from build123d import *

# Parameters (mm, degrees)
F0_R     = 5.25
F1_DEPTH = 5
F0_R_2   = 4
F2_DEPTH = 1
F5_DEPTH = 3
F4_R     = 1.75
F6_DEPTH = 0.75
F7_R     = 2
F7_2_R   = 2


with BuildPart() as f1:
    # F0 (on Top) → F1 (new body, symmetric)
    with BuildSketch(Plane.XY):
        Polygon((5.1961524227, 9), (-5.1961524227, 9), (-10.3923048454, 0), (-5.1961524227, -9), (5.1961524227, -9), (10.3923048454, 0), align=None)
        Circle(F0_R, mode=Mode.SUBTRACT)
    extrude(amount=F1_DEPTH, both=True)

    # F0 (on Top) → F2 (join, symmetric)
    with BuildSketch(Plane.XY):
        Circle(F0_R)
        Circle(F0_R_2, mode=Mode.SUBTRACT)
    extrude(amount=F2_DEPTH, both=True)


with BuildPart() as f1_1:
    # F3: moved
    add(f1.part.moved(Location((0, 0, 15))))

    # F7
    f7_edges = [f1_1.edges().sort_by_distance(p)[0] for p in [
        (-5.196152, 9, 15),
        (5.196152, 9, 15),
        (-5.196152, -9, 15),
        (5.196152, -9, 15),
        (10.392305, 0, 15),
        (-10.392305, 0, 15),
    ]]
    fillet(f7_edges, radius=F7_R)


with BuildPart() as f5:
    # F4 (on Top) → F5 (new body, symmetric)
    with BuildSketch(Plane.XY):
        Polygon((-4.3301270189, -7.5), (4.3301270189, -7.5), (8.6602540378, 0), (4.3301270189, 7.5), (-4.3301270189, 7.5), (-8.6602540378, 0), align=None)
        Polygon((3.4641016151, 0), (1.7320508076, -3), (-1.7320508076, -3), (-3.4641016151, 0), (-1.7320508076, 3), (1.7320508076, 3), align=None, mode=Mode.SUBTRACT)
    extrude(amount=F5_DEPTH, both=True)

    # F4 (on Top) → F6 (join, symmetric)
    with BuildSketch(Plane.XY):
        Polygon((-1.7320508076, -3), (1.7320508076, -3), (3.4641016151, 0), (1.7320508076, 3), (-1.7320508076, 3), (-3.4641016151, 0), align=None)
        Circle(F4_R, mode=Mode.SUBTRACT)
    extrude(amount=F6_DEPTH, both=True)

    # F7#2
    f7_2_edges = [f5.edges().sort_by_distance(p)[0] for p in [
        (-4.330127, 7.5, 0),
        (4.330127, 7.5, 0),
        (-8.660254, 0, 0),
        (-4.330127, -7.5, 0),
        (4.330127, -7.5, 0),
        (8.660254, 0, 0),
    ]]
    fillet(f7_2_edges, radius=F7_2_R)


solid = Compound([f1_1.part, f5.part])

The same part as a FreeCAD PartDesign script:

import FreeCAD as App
import Part
import Sketcher
Q = App.Units.Quantity


def edges_at(feature, points):
    """Names of the edges that pass closest to the given points."""
    edges = feature.Shape.Edges
    near = lambda p: min(range(len(edges)), key=lambda i: edges[i].distToShape(Part.Vertex(*p))[0])
    return sorted({f"Edge{near(p) + 1}" for p in points})

doc = App.newDocument("Part")
body = doc.addObject("PartDesign::Body", "Body")

sketch1 = doc.addObject("Sketcher::SketchObject", "Sketch")
body.addObject(sketch1)
sketch1.AttachmentSupport = (doc.XY_Plane, [""])
sketch1.MapMode = "FlatFace"
sketch1.addGeometry([
    Part.LineSegment(App.Vector(5.196152, 9, 0), App.Vector(-5.196152, 9, 0)),
    Part.LineSegment(App.Vector(-5.196152, 9, 0), App.Vector(-10.392305, 0, 0)),
    Part.LineSegment(App.Vector(-10.392305, 0, 0), App.Vector(-5.196152, -9, 0)),
    Part.LineSegment(App.Vector(-5.196152, -9, 0), App.Vector(5.196152, -9, 0)),
    Part.LineSegment(App.Vector(5.196152, -9, 0), App.Vector(10.392305, 0, 0)),
    Part.LineSegment(App.Vector(10.392305, 0, 0), App.Vector(5.196152, 9, 0)),
    Part.Circle(App.Vector(0, 0, 0), App.Vector(0, 0, 1), 5.25),
], False)
sketch1.addConstraint([
    Sketcher.Constraint("Coincident", 0, 2, 1, 1),
    Sketcher.Constraint("Coincident", 1, 2, 2, 1),
    Sketcher.Constraint("Coincident", 2, 2, 3, 1),
    Sketcher.Constraint("Coincident", 3, 2, 4, 1),
    Sketcher.Constraint("Coincident", 4, 2, 5, 1),
    Sketcher.Constraint("Coincident", 5, 2, 0, 1),
    Sketcher.Constraint("Horizontal", 0),
    Sketcher.Constraint("Horizontal", 3),
    Sketcher.Constraint("Coincident", 6, 3, -1, 1),
    Sketcher.Constraint("Symmetric", 0, 2, 3, 2, -1, 1),
    Sketcher.Constraint("Symmetric", 1, 2, 4, 2, -1, 1),
    Sketcher.Constraint("PointOnObject", 1, 2, -1),
    Sketcher.Constraint("Parallel", 2, 5),
    Sketcher.Constraint("Vertical", 0, 2, 2, 2),
    Sketcher.Constraint("Diameter", 6, 10.5),
    Sketcher.Constraint("Angle", 1, Q("-120 deg")),
    Sketcher.Constraint("DistanceY", -1, 1, 0, 2, 9.0),
    Sketcher.Constraint("DistanceX", 0, 2, 0, 1, 10.392305),
])
pad1 = doc.addObject("PartDesign::Pad", "Pad")
body.addObject(pad1)
pad1.Profile = sketch1
pad1.Length = 10
pad1.Midplane = True

sketch2 = doc.addObject("Sketcher::SketchObject", "Sketch001")
body.addObject(sketch2)
sketch2.AttachmentSupport = (doc.XY_Plane, [""])
sketch2.MapMode = "FlatFace"
sketch2.addGeometry([
    Part.Circle(App.Vector(0, 0, 0), App.Vector(0, 0, 1), 5.25),
    Part.Circle(App.Vector(0, 0, 0), App.Vector(0, 0, 1), 4),
], False)
sketch2.addConstraint([
    Sketcher.Constraint("Coincident", 0, 3, -1, 1),
    Sketcher.Constraint("Coincident", 1, 3, -1, 1),
    Sketcher.Constraint("Diameter", 1, 8.0),
    Sketcher.Constraint("Diameter", 0, 10.5),
])
pad2 = doc.addObject("PartDesign::Pad", "Pad001")
body.addObject(pad2)
pad2.Profile = sketch2
pad2.Length = 2
pad2.Midplane = True
body2 = doc.addObject("PartDesign::Body", "Body001")
doc.recompute()

body.Placement = App.Placement(App.Vector(0, 0, 15), App.Rotation(App.Vector(0, 0, 1), 0))
boolean = doc.addObject("PartDesign::Boolean", "Boolean")
body2.addObject(boolean)
boolean.Type = "Fuse"
boolean.addObjects([body])
doc.recompute()

fillet = doc.addObject("PartDesign::Fillet", "Fillet")
body2.addObject(fillet)
fillet.Base = (boolean, edges_at(boolean, [
    (-5.196, 9, 15),
    (5.196, 9, 15),
    (-5.196, -9, 15),
    (5.196, -9, 15),
    (10.392, 0, 15),
    (-10.392, 0, 15),
]))
fillet.Radius = 2
body3 = doc.addObject("PartDesign::Body", "Body002")

sketch3 = doc.addObject("Sketcher::SketchObject", "Sketch002")
body3.addObject(sketch3)
sketch3.AttachmentSupport = (doc.getObject("XY_Plane002"), [""])
sketch3.MapMode = "FlatFace"
sketch3.addGeometry([
    Part.LineSegment(App.Vector(-4.330127, -7.5, 0), App.Vector(4.330127, -7.5, 0)),
    Part.LineSegment(App.Vector(4.330127, -7.5, 0), App.Vector(8.660254, 0, 0)),
    Part.LineSegment(App.Vector(8.660254, 0, 0), App.Vector(4.330127, 7.5, 0)),
    Part.LineSegment(App.Vector(4.330127, 7.5, 0), App.Vector(-4.330127, 7.5, 0)),
    Part.LineSegment(App.Vector(-4.330127, 7.5, 0), App.Vector(-8.660254, 0, 0)),
    Part.LineSegment(App.Vector(-8.660254, 0, 0), App.Vector(-4.330127, -7.5, 0)),
    Part.LineSegment(App.Vector(1.732051, 3, 0), App.Vector(3.464102, 0, 0)),
    Part.LineSegment(App.Vector(3.464102, 0, 0), App.Vector(1.732051, -3, 0)),
    Part.LineSegment(App.Vector(1.732051, -3, 0), App.Vector(-1.732051, -3, 0)),
    Part.LineSegment(App.Vector(-1.732051, -3, 0), App.Vector(-3.464102, 0, 0)),
    Part.LineSegment(App.Vector(-3.464102, 0, 0), App.Vector(-1.732051, 3, 0)),
    Part.LineSegment(App.Vector(-1.732051, 3, 0), App.Vector(1.732051, 3, 0)),
], False)
sketch3.addConstraint([
    Sketcher.Constraint("Coincident", 0, 2, 1, 1),
    Sketcher.Constraint("Coincident", 1, 2, 2, 1),
    Sketcher.Constraint("Coincident", 2, 2, 3, 1),
    Sketcher.Constraint("Coincident", 3, 2, 4, 1),
    Sketcher.Constraint("Coincident", 4, 2, 5, 1),
    Sketcher.Constraint("Coincident", 5, 2, 0, 1),
    Sketcher.Constraint("Coincident", 6, 2, 7, 1),
    Sketcher.Constraint("Coincident", 7, 2, 8, 1),
    Sketcher.Constraint("Coincident", 8, 2, 9, 1),
    Sketcher.Constraint("Coincident", 9, 2, 10, 1),
    Sketcher.Constraint("Coincident", 10, 2, 11, 1),
    Sketcher.Constraint("Coincident", 11, 2, 6, 1),
    Sketcher.Constraint("Horizontal", 0),
    Sketcher.Constraint("Horizontal", 3),
    Sketcher.Constraint("Horizontal", 8),
    Sketcher.Constraint("Horizontal", 11),
    Sketcher.Constraint("Symmetric", 0, 2, 3, 2, -1, 1),
    Sketcher.Constraint("Symmetric", 1, 2, 4, 2, -1, 1),
    Sketcher.Constraint("Symmetric", 6, 2, 9, 2, -1, 1),
    Sketcher.Constraint("Symmetric", 7, 2, 10, 2, -1, 1),
    Sketcher.Constraint("PointOnObject", 1, 2, -1),
    Sketcher.Constraint("PointOnObject", 6, 2, -1),
    Sketcher.Constraint("Parallel", 2, 5),
    Sketcher.Constraint("Parallel", 5, 6),
    Sketcher.Constraint("Parallel", 4, 7),
    Sketcher.Constraint("Parallel", 6, 9),
    Sketcher.Constraint("Vertical", 0, 2, 2, 2),
    Sketcher.Constraint("Angle", 1, Q("60 deg")),
    Sketcher.Constraint("DistanceY", 7, 2, -1, 1, 3.0),
    Sketcher.Constraint("DistanceY", 0, 2, 2, 2, 15.0),
    Sketcher.Constraint("DistanceX", 8, 2, 8, 1, 3.464102),
    Sketcher.Constraint("DistanceX", 0, 1, 0, 2, 8.660254),
])
pad3 = doc.addObject("PartDesign::Pad", "Pad002")
body3.addObject(pad3)
pad3.Profile = sketch3
pad3.Length = 6
pad3.Midplane = True

sketch4 = doc.addObject("Sketcher::SketchObject", "Sketch003")
body3.addObject(sketch4)
sketch4.AttachmentSupport = (doc.getObject("XY_Plane002"), [""])
sketch4.MapMode = "FlatFace"
sketch4.addGeometry([
    Part.LineSegment(App.Vector(-1.732051, -3, 0), App.Vector(1.732051, -3, 0)),
    Part.LineSegment(App.Vector(1.732051, -3, 0), App.Vector(3.464102, 0, 0)),
    Part.LineSegment(App.Vector(3.464102, 0, 0), App.Vector(1.732051, 3, 0)),
    Part.LineSegment(App.Vector(1.732051, 3, 0), App.Vector(-1.732051, 3, 0)),
    Part.LineSegment(App.Vector(-1.732051, 3, 0), App.Vector(-3.464102, 0, 0)),
    Part.LineSegment(App.Vector(-3.464102, 0, 0), App.Vector(-1.732051, -3, 0)),
    Part.Circle(App.Vector(0, 0, 0), App.Vector(0, 0, 1), 1.75),
], False)
sketch4.addConstraint([
    Sketcher.Constraint("Coincident", 0, 2, 1, 1),
    Sketcher.Constraint("Coincident", 1, 2, 2, 1),
    Sketcher.Constraint("Coincident", 2, 2, 3, 1),
    Sketcher.Constraint("Coincident", 3, 2, 4, 1),
    Sketcher.Constraint("Coincident", 4, 2, 5, 1),
    Sketcher.Constraint("Coincident", 5, 2, 0, 1),
    Sketcher.Constraint("Horizontal", 0),
    Sketcher.Constraint("Horizontal", 3),
    Sketcher.Constraint("Coincident", 6, 3, -1, 1),
    Sketcher.Constraint("Symmetric", 0, 2, 3, 2, -1, 1),
    Sketcher.Constraint("Symmetric", 1, 2, 4, 2, -1, 1),
    Sketcher.Constraint("PointOnObject", 1, 2, -1),
    Sketcher.Constraint("Parallel", 2, 5),
    Sketcher.Constraint("Vertical", 0, 2, 2, 2),
    Sketcher.Constraint("Diameter", 6, 3.5),
    Sketcher.Constraint("Angle", 1, Q("60 deg")),
    Sketcher.Constraint("DistanceY", 0, 2, -1, 1, 3.0),
    Sketcher.Constraint("DistanceX", 0, 1, 0, 2, 3.464102),
])
pad4 = doc.addObject("PartDesign::Pad", "Pad003")
body3.addObject(pad4)
pad4.Profile = sketch4
pad4.Length = 1.5
pad4.Midplane = True
doc.recompute()

fillet2 = doc.addObject("PartDesign::Fillet", "Fillet001")
body3.addObject(fillet2)
fillet2.Base = (pad4, edges_at(pad4, [
    (-4.33, 7.5, 0),
    (4.33, 7.5, 0),
    (-8.66, 0, 0),
    (-4.33, -7.5, 0),
    (4.33, -7.5, 0),
    (8.66, 0, 0),
]))
fillet2.Radius = 2

doc.recompute()
